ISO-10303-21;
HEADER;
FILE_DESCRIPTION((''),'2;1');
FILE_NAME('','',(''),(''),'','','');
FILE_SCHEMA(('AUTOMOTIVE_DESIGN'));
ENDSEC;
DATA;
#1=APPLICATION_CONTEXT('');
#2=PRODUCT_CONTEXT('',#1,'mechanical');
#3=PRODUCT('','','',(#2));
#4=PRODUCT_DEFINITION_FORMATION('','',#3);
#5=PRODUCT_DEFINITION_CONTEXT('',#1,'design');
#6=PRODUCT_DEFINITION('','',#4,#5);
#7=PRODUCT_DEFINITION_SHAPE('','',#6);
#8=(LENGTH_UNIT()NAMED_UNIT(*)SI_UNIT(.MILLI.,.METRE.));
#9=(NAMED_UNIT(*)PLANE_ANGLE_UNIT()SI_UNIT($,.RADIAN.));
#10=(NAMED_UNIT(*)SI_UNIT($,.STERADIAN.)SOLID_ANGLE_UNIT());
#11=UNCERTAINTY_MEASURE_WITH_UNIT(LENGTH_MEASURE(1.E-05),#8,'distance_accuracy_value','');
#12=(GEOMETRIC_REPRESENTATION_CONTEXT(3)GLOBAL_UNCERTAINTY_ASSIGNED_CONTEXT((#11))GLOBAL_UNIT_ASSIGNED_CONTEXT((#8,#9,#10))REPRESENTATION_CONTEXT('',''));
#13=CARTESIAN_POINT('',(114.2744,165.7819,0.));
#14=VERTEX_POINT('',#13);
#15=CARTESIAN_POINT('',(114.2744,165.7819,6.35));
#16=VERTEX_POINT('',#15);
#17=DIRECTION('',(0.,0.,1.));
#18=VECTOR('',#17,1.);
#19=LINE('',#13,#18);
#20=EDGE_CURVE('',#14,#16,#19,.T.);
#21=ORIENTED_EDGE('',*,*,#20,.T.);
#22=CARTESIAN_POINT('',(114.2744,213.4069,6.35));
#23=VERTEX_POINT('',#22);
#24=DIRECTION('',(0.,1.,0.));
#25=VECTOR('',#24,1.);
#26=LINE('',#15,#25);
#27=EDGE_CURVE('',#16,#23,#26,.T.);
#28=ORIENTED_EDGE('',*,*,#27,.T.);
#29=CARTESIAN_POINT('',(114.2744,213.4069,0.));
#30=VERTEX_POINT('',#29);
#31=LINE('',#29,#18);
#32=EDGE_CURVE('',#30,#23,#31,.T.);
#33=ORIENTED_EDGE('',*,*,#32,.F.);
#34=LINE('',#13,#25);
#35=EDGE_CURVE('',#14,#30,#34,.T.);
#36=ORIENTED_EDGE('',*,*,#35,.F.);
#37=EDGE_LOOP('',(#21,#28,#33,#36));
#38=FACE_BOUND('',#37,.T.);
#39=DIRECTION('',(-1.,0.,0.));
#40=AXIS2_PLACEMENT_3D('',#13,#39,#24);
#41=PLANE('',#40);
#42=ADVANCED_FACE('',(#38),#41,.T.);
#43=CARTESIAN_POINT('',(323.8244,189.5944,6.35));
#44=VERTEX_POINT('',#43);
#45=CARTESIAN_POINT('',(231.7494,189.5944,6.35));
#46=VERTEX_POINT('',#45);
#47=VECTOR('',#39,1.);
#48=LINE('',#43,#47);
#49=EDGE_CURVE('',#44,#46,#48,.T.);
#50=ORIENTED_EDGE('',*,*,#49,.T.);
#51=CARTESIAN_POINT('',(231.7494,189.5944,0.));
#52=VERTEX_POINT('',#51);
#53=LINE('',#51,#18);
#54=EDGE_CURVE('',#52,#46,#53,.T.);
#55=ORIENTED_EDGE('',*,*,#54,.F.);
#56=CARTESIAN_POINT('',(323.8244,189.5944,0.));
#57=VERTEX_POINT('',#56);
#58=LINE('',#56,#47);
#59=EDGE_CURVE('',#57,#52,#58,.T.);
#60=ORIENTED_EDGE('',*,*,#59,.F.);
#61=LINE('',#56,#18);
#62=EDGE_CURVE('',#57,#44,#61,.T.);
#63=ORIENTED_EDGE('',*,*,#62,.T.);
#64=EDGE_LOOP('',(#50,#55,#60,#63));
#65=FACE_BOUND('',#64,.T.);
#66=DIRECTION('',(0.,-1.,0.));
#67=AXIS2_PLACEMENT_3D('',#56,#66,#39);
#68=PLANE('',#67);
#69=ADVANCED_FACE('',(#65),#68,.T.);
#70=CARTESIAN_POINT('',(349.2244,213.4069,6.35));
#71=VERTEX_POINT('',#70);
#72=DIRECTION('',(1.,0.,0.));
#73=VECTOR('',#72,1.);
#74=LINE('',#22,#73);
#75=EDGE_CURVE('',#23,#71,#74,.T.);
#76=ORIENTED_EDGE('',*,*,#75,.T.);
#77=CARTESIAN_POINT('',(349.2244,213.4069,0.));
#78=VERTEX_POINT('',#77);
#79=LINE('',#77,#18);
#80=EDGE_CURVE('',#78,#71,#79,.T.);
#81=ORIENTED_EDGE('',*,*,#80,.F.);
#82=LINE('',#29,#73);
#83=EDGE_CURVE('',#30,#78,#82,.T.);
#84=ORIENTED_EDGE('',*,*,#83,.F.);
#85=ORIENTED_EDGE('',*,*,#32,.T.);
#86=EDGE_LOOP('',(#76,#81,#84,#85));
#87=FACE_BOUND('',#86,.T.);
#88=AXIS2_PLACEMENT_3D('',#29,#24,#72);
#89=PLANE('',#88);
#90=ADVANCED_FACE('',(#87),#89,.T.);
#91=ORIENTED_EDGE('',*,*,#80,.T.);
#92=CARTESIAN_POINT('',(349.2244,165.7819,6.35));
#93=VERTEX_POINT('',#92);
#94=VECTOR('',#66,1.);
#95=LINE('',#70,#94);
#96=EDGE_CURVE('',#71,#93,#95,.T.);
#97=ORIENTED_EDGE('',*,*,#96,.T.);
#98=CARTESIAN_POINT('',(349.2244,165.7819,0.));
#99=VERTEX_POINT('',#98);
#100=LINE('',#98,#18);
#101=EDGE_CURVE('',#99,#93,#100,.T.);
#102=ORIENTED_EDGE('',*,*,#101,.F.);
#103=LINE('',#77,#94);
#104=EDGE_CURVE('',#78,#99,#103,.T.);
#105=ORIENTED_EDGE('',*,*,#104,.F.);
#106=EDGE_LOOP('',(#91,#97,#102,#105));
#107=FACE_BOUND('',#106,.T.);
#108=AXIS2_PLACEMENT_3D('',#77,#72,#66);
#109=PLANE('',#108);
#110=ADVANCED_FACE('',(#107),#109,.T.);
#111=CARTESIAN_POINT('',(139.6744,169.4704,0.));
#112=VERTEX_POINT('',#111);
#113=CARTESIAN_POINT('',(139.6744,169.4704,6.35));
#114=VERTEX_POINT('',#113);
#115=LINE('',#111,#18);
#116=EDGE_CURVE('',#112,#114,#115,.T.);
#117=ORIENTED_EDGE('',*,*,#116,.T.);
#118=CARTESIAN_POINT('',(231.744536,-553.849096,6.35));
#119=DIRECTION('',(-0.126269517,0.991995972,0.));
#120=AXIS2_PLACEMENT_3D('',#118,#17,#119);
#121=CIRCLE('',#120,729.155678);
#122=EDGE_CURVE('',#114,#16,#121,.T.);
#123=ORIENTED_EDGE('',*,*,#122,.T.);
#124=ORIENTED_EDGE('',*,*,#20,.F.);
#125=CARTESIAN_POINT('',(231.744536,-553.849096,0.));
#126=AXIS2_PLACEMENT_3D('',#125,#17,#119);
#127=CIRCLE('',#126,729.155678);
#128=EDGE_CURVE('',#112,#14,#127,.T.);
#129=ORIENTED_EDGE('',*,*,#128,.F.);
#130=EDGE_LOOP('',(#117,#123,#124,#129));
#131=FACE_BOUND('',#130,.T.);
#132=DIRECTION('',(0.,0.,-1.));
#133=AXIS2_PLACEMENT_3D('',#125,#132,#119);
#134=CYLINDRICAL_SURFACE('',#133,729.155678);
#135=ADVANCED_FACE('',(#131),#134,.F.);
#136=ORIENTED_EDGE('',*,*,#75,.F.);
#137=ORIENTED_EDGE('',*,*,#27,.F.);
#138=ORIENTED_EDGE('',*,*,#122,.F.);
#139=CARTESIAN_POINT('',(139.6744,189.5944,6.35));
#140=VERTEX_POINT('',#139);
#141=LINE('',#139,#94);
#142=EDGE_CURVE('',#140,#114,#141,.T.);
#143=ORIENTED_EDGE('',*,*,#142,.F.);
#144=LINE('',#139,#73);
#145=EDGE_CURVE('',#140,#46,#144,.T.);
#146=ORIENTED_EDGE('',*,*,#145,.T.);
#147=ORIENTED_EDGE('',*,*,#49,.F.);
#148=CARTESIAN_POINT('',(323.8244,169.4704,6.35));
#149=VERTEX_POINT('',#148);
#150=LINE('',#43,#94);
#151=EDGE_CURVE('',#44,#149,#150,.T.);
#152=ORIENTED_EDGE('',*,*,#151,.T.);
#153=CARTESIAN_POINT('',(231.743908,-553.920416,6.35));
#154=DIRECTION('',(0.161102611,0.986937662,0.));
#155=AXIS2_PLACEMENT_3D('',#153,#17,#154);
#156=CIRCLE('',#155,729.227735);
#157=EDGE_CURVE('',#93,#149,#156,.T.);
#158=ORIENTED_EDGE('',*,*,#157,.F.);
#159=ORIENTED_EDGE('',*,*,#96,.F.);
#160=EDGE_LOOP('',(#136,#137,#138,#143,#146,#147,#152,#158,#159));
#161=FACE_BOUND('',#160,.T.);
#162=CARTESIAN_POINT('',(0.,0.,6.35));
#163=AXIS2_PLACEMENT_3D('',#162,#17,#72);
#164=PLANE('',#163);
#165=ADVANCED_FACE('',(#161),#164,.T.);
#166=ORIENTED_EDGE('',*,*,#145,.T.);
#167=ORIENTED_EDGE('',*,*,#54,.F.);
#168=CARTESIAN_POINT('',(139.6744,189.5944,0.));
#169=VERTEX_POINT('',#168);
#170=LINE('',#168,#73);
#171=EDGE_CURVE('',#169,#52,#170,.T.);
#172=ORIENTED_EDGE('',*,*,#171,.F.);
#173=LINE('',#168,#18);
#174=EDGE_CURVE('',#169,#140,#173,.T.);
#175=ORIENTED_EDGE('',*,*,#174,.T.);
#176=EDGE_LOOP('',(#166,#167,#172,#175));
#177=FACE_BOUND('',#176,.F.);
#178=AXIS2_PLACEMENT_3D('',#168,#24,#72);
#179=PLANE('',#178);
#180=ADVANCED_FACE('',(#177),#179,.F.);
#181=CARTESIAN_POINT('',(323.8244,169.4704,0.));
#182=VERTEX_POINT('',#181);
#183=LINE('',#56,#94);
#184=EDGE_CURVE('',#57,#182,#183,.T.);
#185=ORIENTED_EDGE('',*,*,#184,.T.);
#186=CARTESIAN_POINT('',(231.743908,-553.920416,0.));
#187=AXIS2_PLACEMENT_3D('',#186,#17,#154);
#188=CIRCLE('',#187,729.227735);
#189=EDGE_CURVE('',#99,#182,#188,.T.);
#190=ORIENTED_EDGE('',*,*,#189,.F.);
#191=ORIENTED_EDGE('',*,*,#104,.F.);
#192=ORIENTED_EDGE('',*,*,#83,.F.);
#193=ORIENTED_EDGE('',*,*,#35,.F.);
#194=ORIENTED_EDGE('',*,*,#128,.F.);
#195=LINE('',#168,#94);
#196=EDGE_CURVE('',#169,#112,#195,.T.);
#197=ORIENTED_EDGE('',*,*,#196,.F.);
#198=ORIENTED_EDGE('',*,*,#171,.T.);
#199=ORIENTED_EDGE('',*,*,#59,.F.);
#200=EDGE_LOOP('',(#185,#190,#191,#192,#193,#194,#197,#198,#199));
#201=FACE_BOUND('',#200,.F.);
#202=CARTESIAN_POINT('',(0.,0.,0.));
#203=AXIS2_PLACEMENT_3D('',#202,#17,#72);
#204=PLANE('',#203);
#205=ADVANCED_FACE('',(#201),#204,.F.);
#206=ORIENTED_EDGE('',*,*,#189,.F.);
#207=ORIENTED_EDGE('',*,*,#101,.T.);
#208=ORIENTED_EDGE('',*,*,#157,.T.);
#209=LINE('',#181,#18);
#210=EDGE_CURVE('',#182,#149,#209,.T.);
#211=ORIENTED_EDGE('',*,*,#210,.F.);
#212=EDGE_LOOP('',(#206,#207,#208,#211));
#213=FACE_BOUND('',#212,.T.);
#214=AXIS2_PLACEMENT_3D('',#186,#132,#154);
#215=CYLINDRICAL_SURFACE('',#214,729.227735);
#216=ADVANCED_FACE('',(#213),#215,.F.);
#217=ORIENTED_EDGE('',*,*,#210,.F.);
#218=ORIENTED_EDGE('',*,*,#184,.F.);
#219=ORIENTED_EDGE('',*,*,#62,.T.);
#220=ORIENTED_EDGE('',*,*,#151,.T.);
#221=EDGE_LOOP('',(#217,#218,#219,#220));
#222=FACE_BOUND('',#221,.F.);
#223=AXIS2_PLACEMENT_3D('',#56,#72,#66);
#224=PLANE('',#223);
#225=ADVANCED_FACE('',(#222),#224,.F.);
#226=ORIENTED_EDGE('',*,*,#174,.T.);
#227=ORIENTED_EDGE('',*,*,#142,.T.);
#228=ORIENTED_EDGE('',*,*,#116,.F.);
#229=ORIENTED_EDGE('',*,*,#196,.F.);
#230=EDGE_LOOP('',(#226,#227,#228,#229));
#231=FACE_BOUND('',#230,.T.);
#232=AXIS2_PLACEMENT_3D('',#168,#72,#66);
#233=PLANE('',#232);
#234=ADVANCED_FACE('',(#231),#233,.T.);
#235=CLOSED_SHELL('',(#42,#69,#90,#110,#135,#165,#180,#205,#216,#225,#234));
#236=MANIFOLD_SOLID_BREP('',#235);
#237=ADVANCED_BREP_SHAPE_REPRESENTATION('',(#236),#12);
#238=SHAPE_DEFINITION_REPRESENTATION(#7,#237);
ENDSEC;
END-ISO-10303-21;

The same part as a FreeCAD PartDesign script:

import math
import FreeCAD as App
import Part
import Sketcher
from FreeCAD import Vector
Q = App.Units.Quantity

doc = App.newDocument("Part")
body = doc.addObject("PartDesign::Body", "Body")

# Sketch on XY plane
sketch1 = body.newObject("Sketcher::SketchObject", "Sketch")
sketch1.AttachmentSupport = (doc.getObject("XY_Plane"), [""])
sketch1.MapMode = "FlatFace"
sketch1.addGeometry(Part.LineSegment(Vector(114, 213, 0), Vector(114, 166, 0)), False)
sketch1.addGeometry(Part.ArcOfCircle(Part.Circle(Vector(232, -554, 0), Vector(0, 0, 1), 729), math.radians(97.25), math.radians(99.27)), False)
sketch1.addGeometry(Part.LineSegment(Vector(140, 169, 0), Vector(140, 190, 0)), False)
sketch1.addGeometry(Part.LineSegment(Vector(140, 190, 0), Vector(324, 190, 0)), False)
sketch1.addGeometry(Part.LineSegment(Vector(324, 190, 0), Vector(324, 169, 0)), False)
sketch1.addGeometry(Part.ArcOfCircle(Part.Circle(Vector(232, -554, 0), Vector(0, 0, 1), 729), math.radians(80.73), math.radians(82.75)), False)
sketch1.addGeometry(Part.LineSegment(Vector(349, 166, 0), Vector(349, 213, 0)), False)
sketch1.addGeometry(Part.LineSegment(Vector(349, 213, 0), Vector(114, 213, 0)), False)
sketch1.addConstraint(Sketcher.Constraint("Coincident", 0, 2, 1, 2))
sketch1.addConstraint(Sketcher.Constraint("Coincident", 1, 1, 2, 1))
sketch1.addConstraint(Sketcher.Constraint("Coincident", 2, 2, 3, 1))
sketch1.addConstraint(Sketcher.Constraint("Coincident", 3, 2, 4, 1))
sketch1.addConstraint(Sketcher.Constraint("Coincident", 4, 2, 5, 2))
sketch1.addConstraint(Sketcher.Constraint("Coincident", 5, 1, 6, 1))
sketch1.addConstraint(Sketcher.Constraint("Coincident", 6, 2, 7, 1))
sketch1.addConstraint(Sketcher.Constraint("Coincident", 7, 2, 0, 1))
sketch1.addConstraint(Sketcher.Constraint("Vertical", 0))
sketch1.addConstraint(Sketcher.Constraint("Vertical", 2))
sketch1.addConstraint(Sketcher.Constraint("Horizontal", 3))
sketch1.addConstraint(Sketcher.Constraint("Vertical", 4))
sketch1.addConstraint(Sketcher.Constraint("Vertical", 6))
sketch1.addConstraint(Sketcher.Constraint("Horizontal", 7))
sketch1.addConstraint(Sketcher.Constraint("Horizontal", 1, 1, 4, 2))
sketch1.addConstraint(Sketcher.Constraint("Equal", 0, 6))
sketch1.addConstraint(Sketcher.Constraint("DistanceX", 0, 2, 2, 2, Q("1 in")))
sketch1.addConstraint(Sketcher.Constraint("DistanceX", 3, 2, 6, 2, Q("1 in")))
sketch1.addConstraint(Sketcher.Constraint("DistanceX", 3, 1, 3, 2, Q("7.25 in")))
sketch1.addConstraint(Sketcher.Constraint("DistanceY", 0, 2, 0, 1, Q("1.875 in")))
sketch1.addConstraint(Sketcher.Constraint("Radius", 1, Q("729.1557 mm")))
sketch1.addConstraint(Sketcher.Constraint("Radius", 5, Q("729.2277 mm")))
sketch1.addConstraint(Sketcher.Constraint("DistanceX", -1, 1, 0, 2, Q("4.499 in")))
sketch1.addConstraint(Sketcher.Constraint("DistanceY", 0, 2, 2, 2, Q("0.9375 in")))
sketch1.addConstraint(Sketcher.Constraint("DistanceY", 2, 1, 2, 2, Q("20.124 mm")))
sketch1.addConstraint(Sketcher.Constraint("DistanceY", 5, 3, -1, 1, Q("21.8079 in")))
pad1 = body.newObject("PartDesign::Pad", "Pad")
pad1.Profile = sketch1
pad1.Length = Q("0.25 in")

doc.recompute()
